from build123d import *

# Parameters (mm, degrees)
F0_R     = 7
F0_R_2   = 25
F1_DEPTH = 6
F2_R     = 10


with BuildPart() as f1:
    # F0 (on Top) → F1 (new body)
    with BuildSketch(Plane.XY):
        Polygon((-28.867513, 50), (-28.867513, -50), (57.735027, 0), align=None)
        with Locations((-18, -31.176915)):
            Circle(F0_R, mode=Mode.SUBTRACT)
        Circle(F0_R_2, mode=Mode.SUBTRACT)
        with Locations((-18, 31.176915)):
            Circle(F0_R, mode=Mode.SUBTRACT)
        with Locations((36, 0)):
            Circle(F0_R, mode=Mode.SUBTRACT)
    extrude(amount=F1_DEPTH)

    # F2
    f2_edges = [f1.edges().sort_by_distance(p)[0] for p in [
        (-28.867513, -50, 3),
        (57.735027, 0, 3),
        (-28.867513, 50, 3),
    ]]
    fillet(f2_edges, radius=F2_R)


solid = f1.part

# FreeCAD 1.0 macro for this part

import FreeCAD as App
import Part
import Sketcher
Q = App.Units.Quantity


def edges_at(feature, points):
    """Names of the edges that pass closest to the given points."""
    edges = feature.Shape.Edges
    near = lambda p: min(range(len(edges)), key=lambda i: edges[i].distToShape(Part.Vertex(*p))[0])
    return sorted({f"Edge{near(p) + 1}" for p in points})


def add_polygon(sketch, points):
    """Adds a closed chain of lines whose ends are joined by coincident constraints."""
    first, n = sketch.GeometryCount, len(points)
    for a, b in zip(points, points[1:] + points[:1]):
        sketch.addGeometry(Part.LineSegment(App.Vector(*a, 0), App.Vector(*b, 0)), False)
    for i in range(n):
        sketch.addConstraint(Sketcher.Constraint("Coincident", first + i, 2, first + (i + 1) % n, 1))

doc = App.newDocument("Part")
body = doc.addObject("PartDesign::Body", "Body")

# Sketch on XY plane
sketch1 = body.newObject("Sketcher::SketchObject", "Sketch")
sketch1.AttachmentSupport = (doc.getObject("XY_Plane"), [""])
sketch1.MapMode = "FlatFace"
add_polygon(sketch1, [(-29, 50), (-29, -50), (58, 0)])  # lines 0-2
sketch1.addGeometry(Part.Circle(App.Vector(-18, -31, 0), App.Vector(0, 0, 1), 7), False)  # 3
sketch1.addGeometry(Part.Circle(App.Vector(0, 0, 0), App.Vector(0, 0, 1), 25), False)  # 4
sketch1.addGeometry(Part.Circle(App.Vector(-18, 31, 0), App.Vector(0, 0, 1), 7), False)  # 5
sketch1.addGeometry(Part.Circle(App.Vector(36, 0, 0), App.Vector(0, 0, 1), 7), False)  # 6
sketch1.addConstraint([
    Sketcher.Constraint("Vertical", 0),
    Sketcher.Constraint("Coincident", 4, 3, -1, 1),
    Sketcher.Constraint("Equal", 3, 5),
    Sketcher.Constraint("Equal", 5, 6),
    Sketcher.Constraint("Symmetric", 3, 3, 5, 3, -1),
    Sketcher.Constraint("PointOnObject", 6, 3, -1),
    Sketcher.Constraint("PointOnObject", 1, 2, -1),
    Sketcher.Constraint("Equal", 1, 2),
    Sketcher.Constraint("Diameter", 3, 14.0),
    Sketcher.Constraint("Diameter", 4, 50.0),
    Sketcher.Constraint("DistanceY", 0, 2, 0, 1, 100.0),
    Sketcher.Constraint("Angle", 1, Q("30 deg")),
    Sketcher.Constraint("DistanceX", 3, 3, -1, 1, 18.0),
    Sketcher.Constraint("DistanceX", -1, 1, 6, 3, 36.0),
    Sketcher.Constraint("DistanceY", 3, 3, 5, 3, 62.35383),
    Sketcher.Constraint("DistanceX", 0, 2, -1, 1, 28.867513),
])
pad1 = body.newObject("PartDesign::Pad", "Pad")
pad1.Profile = sketch1
pad1.Length = 6
doc.recompute()

fillet = body.newObject("PartDesign::Fillet", "Fillet")
fillet.Base = (pad1, edges_at(pad1, [(-28.868, -50, 3), (57.735, 0, 3), (-28.868, 50, 3)]))
fillet.Radius = 10

doc.recompute()
